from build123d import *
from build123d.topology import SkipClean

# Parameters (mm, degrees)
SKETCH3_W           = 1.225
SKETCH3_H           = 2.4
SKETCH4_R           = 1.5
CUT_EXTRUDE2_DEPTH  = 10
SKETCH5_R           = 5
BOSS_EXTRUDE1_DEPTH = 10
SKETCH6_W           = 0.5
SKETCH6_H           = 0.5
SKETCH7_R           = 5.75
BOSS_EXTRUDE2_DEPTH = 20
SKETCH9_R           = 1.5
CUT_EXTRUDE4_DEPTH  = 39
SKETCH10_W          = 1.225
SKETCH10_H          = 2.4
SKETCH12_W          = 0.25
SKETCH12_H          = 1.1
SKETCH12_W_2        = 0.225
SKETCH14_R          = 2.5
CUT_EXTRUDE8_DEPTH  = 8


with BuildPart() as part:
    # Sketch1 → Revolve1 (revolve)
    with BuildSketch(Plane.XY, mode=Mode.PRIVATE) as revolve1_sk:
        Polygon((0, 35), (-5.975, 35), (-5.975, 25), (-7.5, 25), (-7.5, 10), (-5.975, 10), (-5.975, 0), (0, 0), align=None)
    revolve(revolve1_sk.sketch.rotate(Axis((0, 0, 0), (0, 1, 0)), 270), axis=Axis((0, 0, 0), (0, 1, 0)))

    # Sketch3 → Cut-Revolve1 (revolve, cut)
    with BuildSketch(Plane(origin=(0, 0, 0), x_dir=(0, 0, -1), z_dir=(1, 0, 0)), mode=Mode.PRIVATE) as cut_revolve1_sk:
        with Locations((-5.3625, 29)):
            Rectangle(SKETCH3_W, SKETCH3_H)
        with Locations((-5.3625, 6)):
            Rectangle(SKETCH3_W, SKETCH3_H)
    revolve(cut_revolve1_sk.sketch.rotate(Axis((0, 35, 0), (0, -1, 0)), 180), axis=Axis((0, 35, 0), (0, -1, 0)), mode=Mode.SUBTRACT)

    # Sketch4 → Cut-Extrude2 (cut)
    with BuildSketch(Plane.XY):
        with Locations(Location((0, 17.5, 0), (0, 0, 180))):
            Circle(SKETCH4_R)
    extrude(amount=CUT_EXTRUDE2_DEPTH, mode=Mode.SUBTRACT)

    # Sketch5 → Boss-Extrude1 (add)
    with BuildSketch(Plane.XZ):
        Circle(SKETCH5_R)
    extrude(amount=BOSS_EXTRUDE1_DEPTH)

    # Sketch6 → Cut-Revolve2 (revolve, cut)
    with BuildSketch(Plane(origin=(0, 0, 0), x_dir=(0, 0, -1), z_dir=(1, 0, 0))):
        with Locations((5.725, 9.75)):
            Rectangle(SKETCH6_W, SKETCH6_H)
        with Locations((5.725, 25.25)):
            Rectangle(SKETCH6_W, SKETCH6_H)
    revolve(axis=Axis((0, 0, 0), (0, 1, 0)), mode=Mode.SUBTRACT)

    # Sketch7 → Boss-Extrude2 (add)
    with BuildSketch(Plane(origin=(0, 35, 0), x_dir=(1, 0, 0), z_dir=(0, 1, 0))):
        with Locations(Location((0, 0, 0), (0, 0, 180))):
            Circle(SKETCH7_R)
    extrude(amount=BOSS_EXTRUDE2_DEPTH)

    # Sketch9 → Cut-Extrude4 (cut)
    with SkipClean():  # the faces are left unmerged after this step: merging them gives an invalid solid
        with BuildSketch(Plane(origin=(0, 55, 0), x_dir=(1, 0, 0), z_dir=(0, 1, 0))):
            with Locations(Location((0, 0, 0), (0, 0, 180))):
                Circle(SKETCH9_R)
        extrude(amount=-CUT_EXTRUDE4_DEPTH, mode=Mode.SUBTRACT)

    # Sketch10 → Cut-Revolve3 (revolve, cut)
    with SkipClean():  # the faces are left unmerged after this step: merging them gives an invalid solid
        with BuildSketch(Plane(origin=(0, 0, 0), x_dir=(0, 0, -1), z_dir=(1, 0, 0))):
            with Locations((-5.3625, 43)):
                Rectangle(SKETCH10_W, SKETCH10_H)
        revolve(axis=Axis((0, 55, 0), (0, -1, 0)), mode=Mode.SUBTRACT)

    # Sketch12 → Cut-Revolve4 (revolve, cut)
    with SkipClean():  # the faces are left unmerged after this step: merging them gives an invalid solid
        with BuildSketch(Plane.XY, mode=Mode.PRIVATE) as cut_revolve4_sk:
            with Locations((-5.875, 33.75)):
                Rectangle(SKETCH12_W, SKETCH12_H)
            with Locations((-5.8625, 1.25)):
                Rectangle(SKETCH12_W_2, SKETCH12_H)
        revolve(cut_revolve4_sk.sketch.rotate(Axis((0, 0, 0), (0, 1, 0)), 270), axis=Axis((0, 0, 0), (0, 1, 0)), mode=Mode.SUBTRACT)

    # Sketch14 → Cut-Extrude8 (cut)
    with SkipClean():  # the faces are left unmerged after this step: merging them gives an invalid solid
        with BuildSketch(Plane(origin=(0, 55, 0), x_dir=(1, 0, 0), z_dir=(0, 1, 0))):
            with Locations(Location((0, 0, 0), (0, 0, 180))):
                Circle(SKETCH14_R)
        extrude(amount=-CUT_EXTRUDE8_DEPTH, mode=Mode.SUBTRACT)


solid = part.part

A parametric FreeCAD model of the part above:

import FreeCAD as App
import Part
import Sketcher

V = App.Vector

doc = App.newDocument("Part")
body = doc.addObject("PartDesign::Body", "Body")

sketch1 = body.newObject("Sketcher::SketchObject", "Sketch")
sketch1.AttachmentSupport = (doc.getObject("XY_Plane"), [""])
sketch1.MapMode = "FlatFace"
sketch1.addGeometry(Part.LineSegment(V(0, 35, 0), V(-5.975, 35, 0)), False)
sketch1.addGeometry(Part.LineSegment(V(-5.975, 35, 0), V(-5.975, 25, 0)), False)
sketch1.addGeometry(Part.LineSegment(V(-5.975, 25, 0), V(-7.5, 25, 0)), False)
sketch1.addGeometry(Part.LineSegment(V(-7.5, 25, 0), V(-7.5, 10, 0)), False)
sketch1.addGeometry(Part.LineSegment(V(-7.5, 10, 0), V(-5.975, 10, 0)), False)
sketch1.addGeometry(Part.LineSegment(V(-5.975, 10, 0), V(-5.975, 0, 0)), False)
sketch1.addGeometry(Part.LineSegment(V(-5.975, 0, 0), V(0, 0, 0)), False)
sketch1.addGeometry(Part.LineSegment(V(0, 0, 0), V(0, 35, 0)), False)
sketch1.addConstraint(Sketcher.Constraint("Coincident", 0, 2, 1, 1))
sketch1.addConstraint(Sketcher.Constraint("Coincident", 1, 2, 2, 1))
sketch1.addConstraint(Sketcher.Constraint("Coincident", 2, 2, 3, 1))
sketch1.addConstraint(Sketcher.Constraint("Coincident", 3, 2, 4, 1))
sketch1.addConstraint(Sketcher.Constraint("Coincident", 4, 2, 5, 1))
sketch1.addConstraint(Sketcher.Constraint("Coincident", 5, 2, 6, 1))
sketch1.addConstraint(Sketcher.Constraint("Coincident", 6, 2, 7, 1))
sketch1.addConstraint(Sketcher.Constraint("Coincident", 7, 2, 0, 1))
sketch1.addConstraint(Sketcher.Constraint("Horizontal", 0))
sketch1.addConstraint(Sketcher.Constraint("Vertical", 1))
sketch1.addConstraint(Sketcher.Constraint("Horizontal", 2))
sketch1.addConstraint(Sketcher.Constraint("Vertical", 3))
sketch1.addConstraint(Sketcher.Constraint("Horizontal", 4))
sketch1.addConstraint(Sketcher.Constraint("Vertical", 5))
sketch1.addConstraint(Sketcher.Constraint("Horizontal", 6))
sketch1.addConstraint(Sketcher.Constraint("Vertical", 7))
sketch1.addConstraint(Sketcher.Constraint("Coincident", 6, 2, -1, 1))
sketch1.addConstraint(Sketcher.Constraint("Vertical", 1, 2, 4, 2))
sketch1.addConstraint(Sketcher.Constraint("Equal", 1, 5))
sketch1.addConstraint(Sketcher.Constraint("DistanceY", 1, 2, 1, 1, 10.0))
sketch1.addConstraint(Sketcher.Constraint("DistanceY", 3, 2, 3, 1, 15.0))
sketch1.addConstraint(Sketcher.Constraint("DistanceX", 2, 2, -1, 1, 7.5))
sketch1.addConstraint(Sketcher.Constraint("DistanceX", 0, 2, 0, 1, 5.975))
revolution = body.newObject("PartDesign::Revolution", "Revolution")
revolution.Profile = sketch1
revolution.ReferenceAxis = (sketch1, ["V_Axis"])
revolution.Angle = 360

sketch2 = body.newObject("Sketcher::SketchObject", "Sketch001")
sketch2.AttachmentSupport = (doc.getObject("YZ_Plane"), [""])
sketch2.MapMode = "FlatFace"
sketch2.addGeometry(Part.LineSegment(V(30.2, 5.975, 0), V(27.8, 5.975, 0)), False)
sketch2.addGeometry(Part.LineSegment(V(27.8, 5.975, 0), V(27.8, 4.75, 0)), False)
sketch2.addGeometry(Part.LineSegment(V(27.8, 4.75, 0), V(30.2, 4.75, 0)), False)
sketch2.addGeometry(Part.LineSegment(V(30.2, 4.75, 0), V(30.2, 5.975, 0)), False)
sketch2.addGeometry(Part.LineSegment(V(7.2, 5.975, 0), V(4.8, 5.975, 0)), False)
sketch2.addGeometry(Part.LineSegment(V(4.8, 5.975, 0), V(4.8, 4.75, 0)), False)
sketch2.addGeometry(Part.LineSegment(V(4.8, 4.75, 0), V(7.2, 4.75, 0)), False)
sketch2.addGeometry(Part.LineSegment(V(7.2, 4.75, 0), V(7.2, 5.975, 0)), False)
sketch2.addConstraint(Sketcher.Constraint("Coincident", 0, 2, 1, 1))
sketch2.addConstraint(Sketcher.Constraint("Coincident", 1, 2, 2, 1))
sketch2.addConstraint(Sketcher.Constraint("Coincident", 2, 2, 3, 1))
sketch2.addConstraint(Sketcher.Constraint("Coincident", 3, 2, 0, 1))
sketch2.addConstraint(Sketcher.Constraint("Coincident", 4, 2, 5, 1))
sketch2.addConstraint(Sketcher.Constraint("Coincident", 5, 2, 6, 1))
sketch2.addConstraint(Sketcher.Constraint("Coincident", 6, 2, 7, 1))
sketch2.addConstraint(Sketcher.Constraint("Coincident", 7, 2, 4, 1))
sketch2.addConstraint(Sketcher.Constraint("Horizontal", 0))
sketch2.addConstraint(Sketcher.Constraint("Vertical", 1))
sketch2.addConstraint(Sketcher.Constraint("Horizontal", 2))
sketch2.addConstraint(Sketcher.Constraint("Vertical", 3))
sketch2.addConstraint(Sketcher.Constraint("Horizontal", 4))
sketch2.addConstraint(Sketcher.Constraint("Vertical", 5))
sketch2.addConstraint(Sketcher.Constraint("Horizontal", 6))
sketch2.addConstraint(Sketcher.Constraint("Vertical", 7))
sketch2.addConstraint(Sketcher.Constraint("Horizontal", 3, 2, 4, 2))
sketch2.addConstraint(Sketcher.Constraint("Horizontal", 2, 2, 5, 2))
sketch2.addConstraint(Sketcher.Constraint("Equal", 2, 4))
sketch2.addConstraint(Sketcher.Constraint("DistanceX", 0, 2, 0, 1, 2.4))
sketch2.addConstraint(Sketcher.Constraint("DistanceX", 4, 2, 0, 2, 23.0))
sketch2.addConstraint(Sketcher.Constraint("DistanceX", -1, 1, 0, 2, 27.8))
sketch2.addConstraint(Sketcher.Constraint("DistanceY", 1, 2, 1, 1, 1.225))
sketch2.addConstraint(Sketcher.Constraint("DistanceY", -1, 1, 1, 2, 4.75))
groove = body.newObject("PartDesign::Groove", "Groove")
groove.Profile = sketch2
groove.ReferenceAxis = (sketch2, ["H_Axis"])
groove.Angle = 360

sketch3 = body.newObject("Sketcher::SketchObject", "Sketch002")
sketch3.AttachmentSupport = (doc.getObject("XY_Plane"), [""])
sketch3.MapMode = "FlatFace"
sketch3.addGeometry(Part.Circle(V(0, 17.5, 0), V(0, 0, 1), 1.5), False)
sketch3.addConstraint(Sketcher.Constraint("PointOnObject", 0, 3, -2))
sketch3.addConstraint(Sketcher.Constraint("Diameter", 0, 3.0))
sketch3.addConstraint(Sketcher.Constraint("DistanceY", -1, 1, 0, 3, 17.5))
pocket1 = body.newObject("PartDesign::Pocket", "Pocket")
pocket1.Profile = sketch3
pocket1.Length = 10
pocket1.Reversed = True

sketch4 = body.newObject("Sketcher::SketchObject", "Sketch003")
sketch4.AttachmentSupport = (doc.getObject("XZ_Plane"), [""])
sketch4.MapMode = "FlatFace"
sketch4.addGeometry(Part.Circle(V(0, 0, 0), V(0, 0, 1), 5), False)
sketch4.addConstraint(Sketcher.Constraint("Coincident", 0, 3, -1, 1))
sketch4.addConstraint(Sketcher.Constraint("Diameter", 0, 10.0))
pad1 = body.newObject("PartDesign::Pad", "Pad")
pad1.Profile = sketch4
pad1.Length = 10

sketch5 = body.newObject("Sketcher::SketchObject", "Sketch004")
sketch5.AttachmentSupport = (doc.getObject("YZ_Plane"), [""])
sketch5.MapMode = "FlatFace"
sketch5.addGeometry(Part.LineSegment(V(10, -5.475, 0), V(9.5, -5.475, 0)), False)
sketch5.addGeometry(Part.LineSegment(V(9.5, -5.475, 0), V(9.5, -5.975, 0)), False)
sketch5.addGeometry(Part.LineSegment(V(9.5, -5.975, 0), V(10, -5.975, 0)), False)
sketch5.addGeometry(Part.LineSegment(V(10, -5.975, 0), V(10, -5.475, 0)), False)
sketch5.addGeometry(Part.LineSegment(V(25.5, -5.475, 0), V(25, -5.475, 0)), False)
sketch5.addGeometry(Part.LineSegment(V(25, -5.475, 0), V(25, -5.975, 0)), False)
sketch5.addGeometry(Part.LineSegment(V(25, -5.975, 0), V(25.5, -5.975, 0)), False)
sketch5.addGeometry(Part.LineSegment(V(25.5, -5.975, 0), V(25.5, -5.475, 0)), False)
sketch5.addConstraint(Sketcher.Constraint("Coincident", 0, 2, 1, 1))
sketch5.addConstraint(Sketcher.Constraint("Coincident", 1, 2, 2, 1))
sketch5.addConstraint(Sketcher.Constraint("Coincident", 2, 2, 3, 1))
sketch5.addConstraint(Sketcher.Constraint("Coincident", 3, 2, 0, 1))
sketch5.addConstraint(Sketcher.Constraint("Coincident", 4, 2, 5, 1))
sketch5.addConstraint(Sketcher.Constraint("Coincident", 5, 2, 6, 1))
sketch5.addConstraint(Sketcher.Constraint("Coincident", 6, 2, 7, 1))
sketch5.addConstraint(Sketcher.Constraint("Coincident", 7, 2, 4, 1))
sketch5.addConstraint(Sketcher.Constraint("Horizontal", 0))
sketch5.addConstraint(Sketcher.Constraint("Vertical", 1))
sketch5.addConstraint(Sketcher.Constraint("Horizontal", 2))
sketch5.addConstraint(Sketcher.Constraint("Vertical", 3))
sketch5.addConstraint(Sketcher.Constraint("Horizontal", 4))
sketch5.addConstraint(Sketcher.Constraint("Vertical", 5))
sketch5.addConstraint(Sketcher.Constraint("Horizontal", 6))
sketch5.addConstraint(Sketcher.Constraint("Vertical", 7))
sketch5.addConstraint(Sketcher.Constraint("Horizontal", 3, 2, 4, 2))
sketch5.addConstraint(Sketcher.Constraint("Horizontal", 2, 2, 5, 2))
sketch5.addConstraint(Sketcher.Constraint("Equal", 2, 4))
sketch5.addConstraint(Sketcher.Constraint("Equal", 6, 1))
sketch5.addConstraint(Sketcher.Constraint("DistanceX", 0, 2, 0, 1, 0.5))
sketch5.addConstraint(Sketcher.Constraint("DistanceX", -1, 1, 2, 2, 10.0))
sketch5.addConstraint(Sketcher.Constraint("DistanceX", -1, 1, 4, 2, 25.0))
sketch5.addConstraint(Sketcher.Constraint("DistanceY", 0, 2, -1, 1, 5.475))
groove2 = body.newObject("PartDesign::Groove", "Groove001")
groove2.Profile = sketch5
groove2.ReferenceAxis = (sketch5, ["H_Axis"])
groove2.Angle = 360

sketch6 = body.newObject("Sketcher::SketchObject", "Sketch005")
sketch6.AttachmentSupport = (doc.getObject("XZ_Plane"), [""])
sketch6.MapMode = "FlatFace"
sketch6.AttachmentOffset = App.Placement(V(0, 0, -35), App.Rotation())
sketch6.addGeometry(Part.Circle(V(0, 0, 0), V(0, 0, 1), 5.75), False)
sketch6.addConstraint(Sketcher.Constraint("Coincident", 0, 3, -1, 1))
sketch6.addConstraint(Sketcher.Constraint("Diameter", 0, 11.5))
pad2 = body.newObject("PartDesign::Pad", "Pad001")
pad2.Profile = sketch6
pad2.Length = 20
pad2.Reversed = True

sketch7 = body.newObject("Sketcher::SketchObject", "Sketch006")
sketch7.AttachmentSupport = (doc.getObject("XZ_Plane"), [""])
sketch7.MapMode = "FlatFace"
sketch7.AttachmentOffset = App.Placement(V(0, 0, -55), App.Rotation())
sketch7.addGeometry(Part.Circle(V(0, 0, 0), V(0, 0, 1), 1.5), False)
sketch7.addConstraint(Sketcher.Constraint("Coincident", 0, 3, -1, 1))
sketch7.addConstraint(Sketcher.Constraint("Diameter", 0, 3.0))
pocket2 = body.newObject("PartDesign::Pocket", "Pocket001")
pocket2.Profile = sketch7
pocket2.Length = 39
pocket2.Reversed = True

sketch8 = body.newObject("Sketcher::SketchObject", "Sketch007")
sketch8.AttachmentSupport = (doc.getObject("YZ_Plane"), [""])
sketch8.MapMode = "FlatFace"
sketch8.addGeometry(Part.LineSegment(V(44.2, 5.975, 0), V(41.8, 5.975, 0)), False)
sketch8.addGeometry(Part.LineSegment(V(41.8, 5.975, 0), V(41.8, 4.75, 0)), False)
sketch8.addGeometry(Part.LineSegment(V(41.8, 4.75, 0), V(44.2, 4.75, 0)), False)
sketch8.addGeometry(Part.LineSegment(V(44.2, 4.75, 0), V(44.2, 5.975, 0)), False)
sketch8.addConstraint(Sketcher.Constraint("Coincident", 0, 2, 1, 1))
sketch8.addConstraint(Sketcher.Constraint("Coincident", 1, 2, 2, 1))
sketch8.addConstraint(Sketcher.Constraint("Coincident", 2, 2, 3, 1))
sketch8.addConstraint(Sketcher.Constraint("Coincident", 3, 2, 0, 1))
sketch8.addConstraint(Sketcher.Constraint("Horizontal", 0))
sketch8.addConstraint(Sketcher.Constraint("Vertical", 1))
sketch8.addConstraint(Sketcher.Constraint("Horizontal", 2))
sketch8.addConstraint(Sketcher.Constraint("Vertical", 3))
sketch8.addConstraint(Sketcher.Constraint("DistanceX", 0, 2, 0, 1, 2.4))
sketch8.addConstraint(Sketcher.Constraint("DistanceX", -1, 1, 0, 2, 41.8))
sketch8.addConstraint(Sketcher.Constraint("DistanceY", 1, 2, 1, 1, 1.225))
sketch8.addConstraint(Sketcher.Constraint("DistanceY", -1, 1, 1, 2, 4.75))
groove3 = body.newObject("PartDesign::Groove", "Groove002")
groove3.Profile = sketch8
groove3.ReferenceAxis = (sketch8, ["H_Axis"])
groove3.Angle = 360

sketch9 = body.newObject("Sketcher::SketchObject", "Sketch008")
sketch9.AttachmentSupport = (doc.getObject("XY_Plane"), [""])
sketch9.MapMode = "FlatFace"
sketch9.addGeometry(Part.LineSegment(V(-6, 34.3, 0), V(-6, 33.2, 0)), False)
sketch9.addGeometry(Part.LineSegment(V(-6, 33.2, 0), V(-5.75, 33.2, 0)), False)
sketch9.addGeometry(Part.LineSegment(V(-5.75, 33.2, 0), V(-5.75, 34.3, 0)), False)
sketch9.addGeometry(Part.LineSegment(V(-5.75, 34.3, 0), V(-6, 34.3, 0)), False)
sketch9.addGeometry(Part.LineSegment(V(-5.975, 1.8, 0), V(-5.975, 0.7, 0)), False)
sketch9.addGeometry(Part.LineSegment(V(-5.975, 0.7, 0), V(-5.75, 0.7, 0)), False)
sketch9.addGeometry(Part.LineSegment(V(-5.75, 0.7, 0), V(-5.75, 1.8, 0)), False)
sketch9.addGeometry(Part.LineSegment(V(-5.75, 1.8, 0), V(-5.975, 1.8, 0)), False)
sketch9.addConstraint(Sketcher.Constraint("Coincident", 0, 2, 1, 1))
sketch9.addConstraint(Sketcher.Constraint("Coincident", 1, 2, 2, 1))
sketch9.addConstraint(Sketcher.Constraint("Coincident", 2, 2, 3, 1))
sketch9.addConstraint(Sketcher.Constraint("Coincident", 3, 2, 0, 1))
sketch9.addConstraint(Sketcher.Constraint("Coincident", 4, 2, 5, 1))
sketch9.addConstraint(Sketcher.Constraint("Coincident", 5, 2, 6, 1))
sketch9.addConstraint(Sketcher.Constraint("Coincident", 6, 2, 7, 1))
sketch9.addConstraint(Sketcher.Constraint("Coincident", 7, 2, 4, 1))
sketch9.addConstraint(Sketcher.Constraint("Vertical", 0))
sketch9.addConstraint(Sketcher.Constraint("Horizontal", 1))
sketch9.addConstraint(Sketcher.Constraint("Vertical", 2))
sketch9.addConstraint(Sketcher.Constraint("Horizontal", 3))
sketch9.addConstraint(Sketcher.Constraint("Vertical", 4))
sketch9.addConstraint(Sketcher.Constraint("Horizontal", 5))
sketch9.addConstraint(Sketcher.Constraint("Vertical", 6))
sketch9.addConstraint(Sketcher.Constraint("Horizontal", 7))
sketch9.addConstraint(Sketcher.Constraint("Vertical", 2, 2, 5, 2))
sketch9.addConstraint(Sketcher.Constraint("Equal", 2, 4))
sketch9.addConstraint(Sketcher.Constraint("DistanceY", 0, 2, 0, 1, 1.1))
sketch9.addConstraint(Sketcher.Constraint("DistanceX", 0, 2, -1, 1, 6.0))
sketch9.addConstraint(Sketcher.Constraint("DistanceX", 1, 1, 1, 2, 0.25))
sketch9.addConstraint(Sketcher.Constraint("DistanceY", -1, 1, 0, 2, 33.2))
sketch9.addConstraint(Sketcher.Constraint("DistanceY", -1, 1, 4, 2, 0.7))
sketch9.addConstraint(Sketcher.Constraint("DistanceX", 5, 1, 5, 2, 0.225))
groove4 = body.newObject("PartDesign::Groove", "Groove003")
groove4.Profile = sketch9
groove4.ReferenceAxis = (sketch9, ["V_Axis"])
groove4.Angle = 360

sketch10 = body.newObject("Sketcher::SketchObject", "Sketch009")
sketch10.AttachmentSupport = (doc.getObject("XZ_Plane"), [""])
sketch10.MapMode = "FlatFace"
sketch10.AttachmentOffset = App.Placement(V(0, 0, -55), App.Rotation())
sketch10.addGeometry(Part.Circle(V(0, 0, 0), V(0, 0, 1), 2.5), False)
sketch10.addConstraint(Sketcher.Constraint("Coincident", 0, 3, -1, 1))
sketch10.addConstraint(Sketcher.Constraint("Diameter", 0, 5.0))
pocket3 = body.newObject("PartDesign::Pocket", "Pocket002")
pocket3.Profile = sketch10
pocket3.Length = 8
pocket3.Reversed = True

doc.recompute()
